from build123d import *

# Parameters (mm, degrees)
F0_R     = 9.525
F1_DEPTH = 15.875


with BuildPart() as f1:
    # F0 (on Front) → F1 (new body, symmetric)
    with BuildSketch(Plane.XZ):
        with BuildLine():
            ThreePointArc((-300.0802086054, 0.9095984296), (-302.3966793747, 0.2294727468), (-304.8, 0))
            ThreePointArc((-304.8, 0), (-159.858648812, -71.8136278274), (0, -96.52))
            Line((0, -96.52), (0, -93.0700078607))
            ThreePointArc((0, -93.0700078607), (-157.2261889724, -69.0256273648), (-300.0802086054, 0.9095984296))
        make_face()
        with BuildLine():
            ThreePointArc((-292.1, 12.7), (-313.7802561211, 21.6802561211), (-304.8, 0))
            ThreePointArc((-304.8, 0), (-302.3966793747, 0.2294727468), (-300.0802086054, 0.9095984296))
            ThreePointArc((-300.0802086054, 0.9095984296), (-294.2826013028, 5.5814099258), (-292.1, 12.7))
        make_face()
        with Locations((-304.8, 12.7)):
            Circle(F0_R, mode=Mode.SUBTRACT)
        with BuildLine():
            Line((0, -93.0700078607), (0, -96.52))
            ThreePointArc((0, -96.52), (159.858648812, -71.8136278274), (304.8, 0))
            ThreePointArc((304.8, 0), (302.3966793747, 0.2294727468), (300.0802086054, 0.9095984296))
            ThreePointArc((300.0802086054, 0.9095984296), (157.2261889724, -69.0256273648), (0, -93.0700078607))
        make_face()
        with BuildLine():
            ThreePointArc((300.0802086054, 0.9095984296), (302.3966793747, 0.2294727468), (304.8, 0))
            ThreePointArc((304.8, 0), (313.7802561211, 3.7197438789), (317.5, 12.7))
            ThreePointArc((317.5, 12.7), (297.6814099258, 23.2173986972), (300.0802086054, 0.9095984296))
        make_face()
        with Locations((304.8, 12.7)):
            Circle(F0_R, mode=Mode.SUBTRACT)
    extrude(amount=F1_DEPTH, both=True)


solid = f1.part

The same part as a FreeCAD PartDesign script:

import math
import FreeCAD as App
import Part
import Sketcher
Q = App.Units.Quantity

doc = App.newDocument("Part")
body = doc.addObject("PartDesign::Body", "Body")

sketch1 = body.newObject("Sketcher::SketchObject", "Sketch")
sketch1.AttachmentSupport = (doc.getObject("XZ_Plane"), [""])
sketch1.MapMode = "FlatFace"
sketch1.addGeometry([
    Part.ArcOfCircle(Part.Circle(App.Vector(0, 433, 0), App.Vector(0, 0, 1), 530), math.radians(-125), math.radians(-55)),
    Part.ArcOfCircle(Part.Circle(App.Vector(305, 13, 0), App.Vector(0, 0, 1), 13), math.radians(-90), math.radians(0)),
    Part.ArcOfCircle(Part.Circle(App.Vector(305, 13, 0), App.Vector(0, 0, 1), 13), math.radians(0), math.radians(248)),
    Part.ArcOfCircle(Part.Circle(App.Vector(0, 433, 0), App.Vector(0, 0, 1), 526), math.radians(-125), math.radians(-55)),
    Part.ArcOfCircle(Part.Circle(App.Vector(-305, 13, 0), App.Vector(0, 0, 1), 13), math.radians(-68), math.radians(0)),
    Part.ArcOfCircle(Part.Circle(App.Vector(-305, 13, 0), App.Vector(0, 0, 1), 13), math.radians(0), math.radians(270)),
    Part.Circle(App.Vector(-305, 13, 0), App.Vector(0, 0, 1), 10),
    Part.Circle(App.Vector(305, 13, 0), App.Vector(0, 0, 1), 10),
], False)
sketch1.addConstraint([
    Sketcher.Constraint("Coincident", 0, 2, 1, 1),
    Sketcher.Constraint("Tangent", 1, 2, 2, 1),
    Sketcher.Constraint("Coincident", 2, 2, 3, 2),
    Sketcher.Constraint("Coincident", 3, 1, 4, 1),
    Sketcher.Constraint("Tangent", 4, 2, 5, 1),
    Sketcher.Constraint("Coincident", 5, 2, 0, 1),
    Sketcher.Constraint("Coincident", 3, 3, 0, 3),
    Sketcher.Constraint("Coincident", 6, 3, 4, 3),
    Sketcher.Constraint("Coincident", 7, 3, 1, 3),
    Sketcher.Constraint("Equal", 1, 2),
    Sketcher.Constraint("Equal", 2, 4),
    Sketcher.Constraint("Equal", 4, 5),
    Sketcher.Constraint("Equal", 6, 7),
    Sketcher.Constraint("Symmetric", 0, 2, 5, 2, -1, 1),
    Sketcher.Constraint("Symmetric", 1, 3, 4, 3, -2),
    Sketcher.Constraint("Horizontal", 7, 3, 1, 2),
    Sketcher.Constraint("Horizontal", 1, 2, 4, 2),
    Sketcher.Constraint("Vertical", 7, 3, 0, 2),
    Sketcher.Constraint("Radius", 1, Q("0.5 in")),
    Sketcher.Constraint("Diameter", 6, Q("0.75 in")),
    Sketcher.Constraint("DistanceX", -1, 1, 1, 3, Q("12 in")),
    Sketcher.Constraint("Radius", 0, 529.523158),
    Sketcher.Constraint("Radius", 3, 526.073166),
])
pad1 = body.newObject("PartDesign::Pad", "Pad")
pad1.Profile = sketch1
pad1.Length = Q("1.25 in")
pad1.Midplane = True

doc.recompute()
